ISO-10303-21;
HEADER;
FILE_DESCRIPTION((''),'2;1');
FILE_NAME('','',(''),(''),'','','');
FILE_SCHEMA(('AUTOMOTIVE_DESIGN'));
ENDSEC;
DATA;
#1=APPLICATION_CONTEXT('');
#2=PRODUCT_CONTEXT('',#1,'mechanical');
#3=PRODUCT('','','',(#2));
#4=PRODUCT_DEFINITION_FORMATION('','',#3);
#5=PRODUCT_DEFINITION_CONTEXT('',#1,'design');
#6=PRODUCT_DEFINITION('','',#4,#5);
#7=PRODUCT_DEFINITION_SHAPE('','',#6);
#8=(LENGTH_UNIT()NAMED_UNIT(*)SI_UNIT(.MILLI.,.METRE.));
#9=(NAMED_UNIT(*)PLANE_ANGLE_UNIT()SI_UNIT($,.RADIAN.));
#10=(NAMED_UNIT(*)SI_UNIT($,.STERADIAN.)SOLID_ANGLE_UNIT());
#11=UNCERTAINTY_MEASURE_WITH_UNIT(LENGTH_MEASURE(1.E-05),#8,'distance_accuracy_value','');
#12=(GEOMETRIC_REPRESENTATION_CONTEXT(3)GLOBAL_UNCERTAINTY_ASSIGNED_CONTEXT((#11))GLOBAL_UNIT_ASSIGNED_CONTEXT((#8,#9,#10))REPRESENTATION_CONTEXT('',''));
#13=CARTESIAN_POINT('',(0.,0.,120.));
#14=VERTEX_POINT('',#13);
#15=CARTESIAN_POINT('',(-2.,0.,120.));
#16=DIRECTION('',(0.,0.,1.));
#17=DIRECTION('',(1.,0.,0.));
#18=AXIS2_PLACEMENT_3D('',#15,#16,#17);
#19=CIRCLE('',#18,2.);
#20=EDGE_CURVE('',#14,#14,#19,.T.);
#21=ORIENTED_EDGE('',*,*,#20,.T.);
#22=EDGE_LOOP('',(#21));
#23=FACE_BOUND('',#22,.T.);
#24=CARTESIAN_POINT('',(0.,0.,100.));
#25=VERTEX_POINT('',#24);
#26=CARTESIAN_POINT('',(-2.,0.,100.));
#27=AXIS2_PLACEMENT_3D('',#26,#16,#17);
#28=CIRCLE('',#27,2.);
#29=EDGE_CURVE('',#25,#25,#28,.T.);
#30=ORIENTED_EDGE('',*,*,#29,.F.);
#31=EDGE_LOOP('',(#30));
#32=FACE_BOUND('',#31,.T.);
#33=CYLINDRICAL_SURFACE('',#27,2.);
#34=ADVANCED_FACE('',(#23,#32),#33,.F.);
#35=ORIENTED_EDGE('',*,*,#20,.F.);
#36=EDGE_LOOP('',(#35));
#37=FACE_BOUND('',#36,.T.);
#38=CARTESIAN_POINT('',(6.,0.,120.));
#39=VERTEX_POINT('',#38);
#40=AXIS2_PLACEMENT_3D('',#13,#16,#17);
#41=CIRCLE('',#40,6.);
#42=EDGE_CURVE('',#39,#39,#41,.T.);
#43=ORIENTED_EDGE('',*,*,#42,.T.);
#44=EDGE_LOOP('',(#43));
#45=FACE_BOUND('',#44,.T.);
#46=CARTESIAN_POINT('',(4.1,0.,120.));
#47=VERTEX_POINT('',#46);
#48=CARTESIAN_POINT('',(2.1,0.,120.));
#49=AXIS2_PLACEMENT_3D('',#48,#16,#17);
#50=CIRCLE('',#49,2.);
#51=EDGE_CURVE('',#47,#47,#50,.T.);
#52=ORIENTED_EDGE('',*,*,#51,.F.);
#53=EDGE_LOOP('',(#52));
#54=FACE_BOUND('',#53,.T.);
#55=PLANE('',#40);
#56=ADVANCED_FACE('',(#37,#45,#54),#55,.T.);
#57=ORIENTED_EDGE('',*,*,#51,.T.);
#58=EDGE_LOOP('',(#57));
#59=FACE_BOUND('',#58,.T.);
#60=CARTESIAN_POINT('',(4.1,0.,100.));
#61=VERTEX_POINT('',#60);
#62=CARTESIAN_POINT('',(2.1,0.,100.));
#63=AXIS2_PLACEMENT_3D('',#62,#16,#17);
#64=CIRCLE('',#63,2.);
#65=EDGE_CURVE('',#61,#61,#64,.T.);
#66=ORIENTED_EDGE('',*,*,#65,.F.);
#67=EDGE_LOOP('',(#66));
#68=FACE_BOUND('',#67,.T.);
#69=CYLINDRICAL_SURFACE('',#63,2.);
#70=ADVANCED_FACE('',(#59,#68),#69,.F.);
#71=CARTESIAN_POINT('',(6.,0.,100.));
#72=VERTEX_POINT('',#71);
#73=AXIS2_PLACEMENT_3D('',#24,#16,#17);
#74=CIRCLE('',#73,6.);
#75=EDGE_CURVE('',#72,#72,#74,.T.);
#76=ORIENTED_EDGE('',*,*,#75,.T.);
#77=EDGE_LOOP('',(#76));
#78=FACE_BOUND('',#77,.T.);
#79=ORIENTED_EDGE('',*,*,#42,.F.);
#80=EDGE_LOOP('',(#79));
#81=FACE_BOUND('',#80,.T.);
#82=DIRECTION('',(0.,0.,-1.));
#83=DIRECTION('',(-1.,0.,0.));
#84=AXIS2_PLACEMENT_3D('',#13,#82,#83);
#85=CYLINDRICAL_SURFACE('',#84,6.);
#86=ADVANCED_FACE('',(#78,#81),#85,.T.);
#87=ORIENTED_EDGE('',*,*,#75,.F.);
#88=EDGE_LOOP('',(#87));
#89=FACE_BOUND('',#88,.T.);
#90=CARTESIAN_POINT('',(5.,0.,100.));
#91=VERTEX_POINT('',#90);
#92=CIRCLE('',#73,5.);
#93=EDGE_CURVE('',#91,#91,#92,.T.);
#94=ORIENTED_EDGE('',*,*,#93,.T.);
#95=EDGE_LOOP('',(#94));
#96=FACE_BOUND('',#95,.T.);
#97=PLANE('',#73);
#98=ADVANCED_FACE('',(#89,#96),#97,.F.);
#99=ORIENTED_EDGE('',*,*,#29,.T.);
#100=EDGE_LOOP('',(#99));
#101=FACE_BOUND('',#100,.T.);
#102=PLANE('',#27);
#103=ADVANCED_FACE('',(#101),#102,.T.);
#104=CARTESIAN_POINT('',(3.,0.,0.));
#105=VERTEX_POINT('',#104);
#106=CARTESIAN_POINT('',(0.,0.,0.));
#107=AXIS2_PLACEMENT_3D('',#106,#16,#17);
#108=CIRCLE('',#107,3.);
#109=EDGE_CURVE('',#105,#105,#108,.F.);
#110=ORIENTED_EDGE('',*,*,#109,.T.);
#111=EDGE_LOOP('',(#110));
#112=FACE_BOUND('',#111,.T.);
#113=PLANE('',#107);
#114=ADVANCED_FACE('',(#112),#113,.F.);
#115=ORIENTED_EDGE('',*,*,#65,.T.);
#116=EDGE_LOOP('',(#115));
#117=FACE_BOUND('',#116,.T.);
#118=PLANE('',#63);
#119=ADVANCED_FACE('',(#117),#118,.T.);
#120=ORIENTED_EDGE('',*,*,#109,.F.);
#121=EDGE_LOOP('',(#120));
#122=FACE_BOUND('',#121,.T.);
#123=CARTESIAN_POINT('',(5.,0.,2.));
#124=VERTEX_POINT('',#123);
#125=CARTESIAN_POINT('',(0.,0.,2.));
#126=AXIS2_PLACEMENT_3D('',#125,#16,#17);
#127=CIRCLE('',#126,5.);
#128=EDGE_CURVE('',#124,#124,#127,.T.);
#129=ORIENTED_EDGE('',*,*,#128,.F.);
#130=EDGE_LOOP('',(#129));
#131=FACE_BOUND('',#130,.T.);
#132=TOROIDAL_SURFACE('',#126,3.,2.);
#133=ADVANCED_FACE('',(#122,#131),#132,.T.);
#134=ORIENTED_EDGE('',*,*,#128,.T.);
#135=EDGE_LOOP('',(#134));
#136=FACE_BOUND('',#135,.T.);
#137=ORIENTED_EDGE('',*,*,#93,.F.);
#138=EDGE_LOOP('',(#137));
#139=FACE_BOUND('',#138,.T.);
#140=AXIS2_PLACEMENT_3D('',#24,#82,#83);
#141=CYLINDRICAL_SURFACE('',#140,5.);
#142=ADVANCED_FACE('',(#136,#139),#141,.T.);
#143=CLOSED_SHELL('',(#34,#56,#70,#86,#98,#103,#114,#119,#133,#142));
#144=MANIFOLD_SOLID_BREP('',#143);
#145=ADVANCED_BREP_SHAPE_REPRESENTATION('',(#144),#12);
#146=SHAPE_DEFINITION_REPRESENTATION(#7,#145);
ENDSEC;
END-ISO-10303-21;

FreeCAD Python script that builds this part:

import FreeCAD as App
import Part
import Sketcher

V = App.Vector


def edges_at(feature, points):
    """Names of the edges that pass closest to the given points."""
    edges = feature.Shape.Edges
    near = lambda p: min(range(len(edges)), key=lambda i: edges[i].distToShape(Part.Vertex(*p))[0])
    return sorted({f"Edge{near(p) + 1}" for p in points})

doc = App.newDocument("Part")
body = doc.addObject("PartDesign::Body", "Body")

sketch1 = body.newObject("Sketcher::SketchObject", "Sketch")
sketch1.AttachmentSupport = (doc.getObject("XY_Plane"), [""])
sketch1.MapMode = "FlatFace"
sketch1.addGeometry(Part.Circle(V(0, 0, 0), V(0, 0, 1), 5), False)
sketch1.addConstraint([
    Sketcher.Constraint("Coincident", 0, 3, -1, 1),
    Sketcher.Constraint("Diameter", 0, 10.0),
])
pad1 = body.newObject("PartDesign::Pad", "Pad")
pad1.Profile = sketch1
pad1.Length = 100
doc.recompute()

fillet = body.newObject("PartDesign::Fillet", "Fillet")
fillet.Base = (pad1, edges_at(pad1, [(-5, 0, 0)]))
fillet.Radius = 2

sketch2 = body.newObject("Sketcher::SketchObject", "Sketch001")
sketch2.AttachmentSupport = (doc.getObject("XY_Plane"), [""])
sketch2.MapMode = "FlatFace"
sketch2.AttachmentOffset = App.Placement(V(0, 0, 100), App.Rotation())
sketch2.addGeometry(Part.Circle(V(0, 0, 0), V(0, 0, 1), 6), False)
sketch2.addConstraint([
    Sketcher.Constraint("Coincident", 0, 3, -1, 1),
    Sketcher.Constraint("Diameter", 0, 12.0),
])
pad2 = body.newObject("PartDesign::Pad", "Pad001")
pad2.Profile = sketch2
pad2.Length = 20

sketch3 = body.newObject("Sketcher::SketchObject", "Sketch002")
sketch3.AttachmentSupport = (doc.getObject("XY_Plane"), [""])
sketch3.MapMode = "FlatFace"
sketch3.AttachmentOffset = App.Placement(V(0, 0, 120), App.Rotation())
sketch3.addGeometry([
    Part.Circle(V(-2, 0, 0), V(0, 0, 1), 2),
    Part.Circle(V(2.1, 0, 0), V(0, 0, 1), 2),
], False)
sketch3.addConstraint([
    Sketcher.Constraint("Equal", 0, 1),
    Sketcher.Constraint("PointOnObject", 0, 3, -1),
    Sketcher.Constraint("PointOnObject", 1, 3, -1),
    Sketcher.Constraint("Diameter", 0, 4.0),
    Sketcher.Constraint("DistanceX", 0, 3, -1, 1, 2.0),
    Sketcher.Constraint("DistanceX", -1, 1, 1, 3, 2.1),
])
pocket1 = body.newObject("PartDesign::Pocket", "Pocket")
pocket1.Profile = sketch3
pocket1.Length = 20

doc.recompute()
